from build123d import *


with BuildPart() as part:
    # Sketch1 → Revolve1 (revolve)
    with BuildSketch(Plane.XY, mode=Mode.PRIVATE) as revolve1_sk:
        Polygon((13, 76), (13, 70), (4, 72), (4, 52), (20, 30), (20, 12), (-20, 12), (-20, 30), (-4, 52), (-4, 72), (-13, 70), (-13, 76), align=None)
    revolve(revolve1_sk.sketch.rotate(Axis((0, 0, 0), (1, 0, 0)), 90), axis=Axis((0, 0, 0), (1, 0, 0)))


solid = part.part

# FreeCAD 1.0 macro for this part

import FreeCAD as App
import Part
import Sketcher
from FreeCAD import Vector
Q = App.Units.Quantity


def add_polygon(sketch, points):
    """Adds a closed chain of lines whose ends are joined by coincident constraints."""
    first, n = sketch.GeometryCount, len(points)
    for a, b in zip(points, points[1:] + points[:1]):
        sketch.addGeometry(Part.LineSegment(App.Vector(*a, 0), App.Vector(*b, 0)), False)
    for i in range(n):
        sketch.addConstraint(Sketcher.Constraint("Coincident", first + i, 2, first + (i + 1) % n, 1))

doc = App.newDocument("Part")
body = doc.addObject("PartDesign::Body", "Body")

# Sketch on XY plane
sketch1 = body.newObject("Sketcher::SketchObject", "Sketch")
sketch1.AttachmentSupport = (doc.getObject("XY_Plane"), [""])
sketch1.MapMode = "FlatFace"
add_polygon(sketch1, [(13, 70), (13, 76), (-13, 76), (-13, 70), (-4, 72), (-4, 52), (-20, 30), (-20, 12), (20, 12), (20, 30), (4, 52), (4, 72)])  # lines 0-11
sketch1.addConstraint([
    Sketcher.Constraint("Vertical", 0),
    Sketcher.Constraint("Horizontal", 1),
    Sketcher.Constraint("Vertical", 2),
    Sketcher.Constraint("Vertical", 4),
    Sketcher.Constraint("Vertical", 6),
    Sketcher.Constraint("Horizontal", 7),
    Sketcher.Constraint("Vertical", 8),
    Sketcher.Constraint("Vertical", 10),
    Sketcher.Constraint("Symmetric", 5, 2, 8, 2, -2),
    Sketcher.Constraint("Symmetric", 4, 2, 9, 2, -2),
    Sketcher.Constraint("Symmetric", 2, 2, 11, 2, -2),
    Sketcher.Constraint("Horizontal", 3, 2, 10, 2),
    Sketcher.Constraint("DistanceX", 1, 2, 1, 1, Q("26 mm")),
    Sketcher.Constraint("DistanceX", 7, 1, 7, 2, Q("40 mm")),
    Sketcher.Constraint("DistanceY", 0, 1, 0, 2, Q("6 mm")),
    Sketcher.Constraint("DistanceY", 4, 2, 4, 1, Q("20 mm")),
    Sketcher.Constraint("DistanceY", 6, 2, 6, 1, Q("18 mm")),
    Sketcher.Constraint("DistanceY", -1, 1, 0, 2, Q("76 mm")),
    Sketcher.Constraint("DistanceX", 3, 2, -1, 1, Q("4 mm")),
    Sketcher.Constraint("DistanceY", -1, 1, 3, 2, Q("72 mm")),
    Sketcher.Constraint("DistanceY", -1, 1, 5, 2, Q("30 mm")),
])
revolution = body.newObject("PartDesign::Revolution", "Revolution")
revolution.Profile = sketch1
revolution.ReferenceAxis = (sketch1, ["H_Axis"])
revolution.Angle = 360

doc.recompute()
